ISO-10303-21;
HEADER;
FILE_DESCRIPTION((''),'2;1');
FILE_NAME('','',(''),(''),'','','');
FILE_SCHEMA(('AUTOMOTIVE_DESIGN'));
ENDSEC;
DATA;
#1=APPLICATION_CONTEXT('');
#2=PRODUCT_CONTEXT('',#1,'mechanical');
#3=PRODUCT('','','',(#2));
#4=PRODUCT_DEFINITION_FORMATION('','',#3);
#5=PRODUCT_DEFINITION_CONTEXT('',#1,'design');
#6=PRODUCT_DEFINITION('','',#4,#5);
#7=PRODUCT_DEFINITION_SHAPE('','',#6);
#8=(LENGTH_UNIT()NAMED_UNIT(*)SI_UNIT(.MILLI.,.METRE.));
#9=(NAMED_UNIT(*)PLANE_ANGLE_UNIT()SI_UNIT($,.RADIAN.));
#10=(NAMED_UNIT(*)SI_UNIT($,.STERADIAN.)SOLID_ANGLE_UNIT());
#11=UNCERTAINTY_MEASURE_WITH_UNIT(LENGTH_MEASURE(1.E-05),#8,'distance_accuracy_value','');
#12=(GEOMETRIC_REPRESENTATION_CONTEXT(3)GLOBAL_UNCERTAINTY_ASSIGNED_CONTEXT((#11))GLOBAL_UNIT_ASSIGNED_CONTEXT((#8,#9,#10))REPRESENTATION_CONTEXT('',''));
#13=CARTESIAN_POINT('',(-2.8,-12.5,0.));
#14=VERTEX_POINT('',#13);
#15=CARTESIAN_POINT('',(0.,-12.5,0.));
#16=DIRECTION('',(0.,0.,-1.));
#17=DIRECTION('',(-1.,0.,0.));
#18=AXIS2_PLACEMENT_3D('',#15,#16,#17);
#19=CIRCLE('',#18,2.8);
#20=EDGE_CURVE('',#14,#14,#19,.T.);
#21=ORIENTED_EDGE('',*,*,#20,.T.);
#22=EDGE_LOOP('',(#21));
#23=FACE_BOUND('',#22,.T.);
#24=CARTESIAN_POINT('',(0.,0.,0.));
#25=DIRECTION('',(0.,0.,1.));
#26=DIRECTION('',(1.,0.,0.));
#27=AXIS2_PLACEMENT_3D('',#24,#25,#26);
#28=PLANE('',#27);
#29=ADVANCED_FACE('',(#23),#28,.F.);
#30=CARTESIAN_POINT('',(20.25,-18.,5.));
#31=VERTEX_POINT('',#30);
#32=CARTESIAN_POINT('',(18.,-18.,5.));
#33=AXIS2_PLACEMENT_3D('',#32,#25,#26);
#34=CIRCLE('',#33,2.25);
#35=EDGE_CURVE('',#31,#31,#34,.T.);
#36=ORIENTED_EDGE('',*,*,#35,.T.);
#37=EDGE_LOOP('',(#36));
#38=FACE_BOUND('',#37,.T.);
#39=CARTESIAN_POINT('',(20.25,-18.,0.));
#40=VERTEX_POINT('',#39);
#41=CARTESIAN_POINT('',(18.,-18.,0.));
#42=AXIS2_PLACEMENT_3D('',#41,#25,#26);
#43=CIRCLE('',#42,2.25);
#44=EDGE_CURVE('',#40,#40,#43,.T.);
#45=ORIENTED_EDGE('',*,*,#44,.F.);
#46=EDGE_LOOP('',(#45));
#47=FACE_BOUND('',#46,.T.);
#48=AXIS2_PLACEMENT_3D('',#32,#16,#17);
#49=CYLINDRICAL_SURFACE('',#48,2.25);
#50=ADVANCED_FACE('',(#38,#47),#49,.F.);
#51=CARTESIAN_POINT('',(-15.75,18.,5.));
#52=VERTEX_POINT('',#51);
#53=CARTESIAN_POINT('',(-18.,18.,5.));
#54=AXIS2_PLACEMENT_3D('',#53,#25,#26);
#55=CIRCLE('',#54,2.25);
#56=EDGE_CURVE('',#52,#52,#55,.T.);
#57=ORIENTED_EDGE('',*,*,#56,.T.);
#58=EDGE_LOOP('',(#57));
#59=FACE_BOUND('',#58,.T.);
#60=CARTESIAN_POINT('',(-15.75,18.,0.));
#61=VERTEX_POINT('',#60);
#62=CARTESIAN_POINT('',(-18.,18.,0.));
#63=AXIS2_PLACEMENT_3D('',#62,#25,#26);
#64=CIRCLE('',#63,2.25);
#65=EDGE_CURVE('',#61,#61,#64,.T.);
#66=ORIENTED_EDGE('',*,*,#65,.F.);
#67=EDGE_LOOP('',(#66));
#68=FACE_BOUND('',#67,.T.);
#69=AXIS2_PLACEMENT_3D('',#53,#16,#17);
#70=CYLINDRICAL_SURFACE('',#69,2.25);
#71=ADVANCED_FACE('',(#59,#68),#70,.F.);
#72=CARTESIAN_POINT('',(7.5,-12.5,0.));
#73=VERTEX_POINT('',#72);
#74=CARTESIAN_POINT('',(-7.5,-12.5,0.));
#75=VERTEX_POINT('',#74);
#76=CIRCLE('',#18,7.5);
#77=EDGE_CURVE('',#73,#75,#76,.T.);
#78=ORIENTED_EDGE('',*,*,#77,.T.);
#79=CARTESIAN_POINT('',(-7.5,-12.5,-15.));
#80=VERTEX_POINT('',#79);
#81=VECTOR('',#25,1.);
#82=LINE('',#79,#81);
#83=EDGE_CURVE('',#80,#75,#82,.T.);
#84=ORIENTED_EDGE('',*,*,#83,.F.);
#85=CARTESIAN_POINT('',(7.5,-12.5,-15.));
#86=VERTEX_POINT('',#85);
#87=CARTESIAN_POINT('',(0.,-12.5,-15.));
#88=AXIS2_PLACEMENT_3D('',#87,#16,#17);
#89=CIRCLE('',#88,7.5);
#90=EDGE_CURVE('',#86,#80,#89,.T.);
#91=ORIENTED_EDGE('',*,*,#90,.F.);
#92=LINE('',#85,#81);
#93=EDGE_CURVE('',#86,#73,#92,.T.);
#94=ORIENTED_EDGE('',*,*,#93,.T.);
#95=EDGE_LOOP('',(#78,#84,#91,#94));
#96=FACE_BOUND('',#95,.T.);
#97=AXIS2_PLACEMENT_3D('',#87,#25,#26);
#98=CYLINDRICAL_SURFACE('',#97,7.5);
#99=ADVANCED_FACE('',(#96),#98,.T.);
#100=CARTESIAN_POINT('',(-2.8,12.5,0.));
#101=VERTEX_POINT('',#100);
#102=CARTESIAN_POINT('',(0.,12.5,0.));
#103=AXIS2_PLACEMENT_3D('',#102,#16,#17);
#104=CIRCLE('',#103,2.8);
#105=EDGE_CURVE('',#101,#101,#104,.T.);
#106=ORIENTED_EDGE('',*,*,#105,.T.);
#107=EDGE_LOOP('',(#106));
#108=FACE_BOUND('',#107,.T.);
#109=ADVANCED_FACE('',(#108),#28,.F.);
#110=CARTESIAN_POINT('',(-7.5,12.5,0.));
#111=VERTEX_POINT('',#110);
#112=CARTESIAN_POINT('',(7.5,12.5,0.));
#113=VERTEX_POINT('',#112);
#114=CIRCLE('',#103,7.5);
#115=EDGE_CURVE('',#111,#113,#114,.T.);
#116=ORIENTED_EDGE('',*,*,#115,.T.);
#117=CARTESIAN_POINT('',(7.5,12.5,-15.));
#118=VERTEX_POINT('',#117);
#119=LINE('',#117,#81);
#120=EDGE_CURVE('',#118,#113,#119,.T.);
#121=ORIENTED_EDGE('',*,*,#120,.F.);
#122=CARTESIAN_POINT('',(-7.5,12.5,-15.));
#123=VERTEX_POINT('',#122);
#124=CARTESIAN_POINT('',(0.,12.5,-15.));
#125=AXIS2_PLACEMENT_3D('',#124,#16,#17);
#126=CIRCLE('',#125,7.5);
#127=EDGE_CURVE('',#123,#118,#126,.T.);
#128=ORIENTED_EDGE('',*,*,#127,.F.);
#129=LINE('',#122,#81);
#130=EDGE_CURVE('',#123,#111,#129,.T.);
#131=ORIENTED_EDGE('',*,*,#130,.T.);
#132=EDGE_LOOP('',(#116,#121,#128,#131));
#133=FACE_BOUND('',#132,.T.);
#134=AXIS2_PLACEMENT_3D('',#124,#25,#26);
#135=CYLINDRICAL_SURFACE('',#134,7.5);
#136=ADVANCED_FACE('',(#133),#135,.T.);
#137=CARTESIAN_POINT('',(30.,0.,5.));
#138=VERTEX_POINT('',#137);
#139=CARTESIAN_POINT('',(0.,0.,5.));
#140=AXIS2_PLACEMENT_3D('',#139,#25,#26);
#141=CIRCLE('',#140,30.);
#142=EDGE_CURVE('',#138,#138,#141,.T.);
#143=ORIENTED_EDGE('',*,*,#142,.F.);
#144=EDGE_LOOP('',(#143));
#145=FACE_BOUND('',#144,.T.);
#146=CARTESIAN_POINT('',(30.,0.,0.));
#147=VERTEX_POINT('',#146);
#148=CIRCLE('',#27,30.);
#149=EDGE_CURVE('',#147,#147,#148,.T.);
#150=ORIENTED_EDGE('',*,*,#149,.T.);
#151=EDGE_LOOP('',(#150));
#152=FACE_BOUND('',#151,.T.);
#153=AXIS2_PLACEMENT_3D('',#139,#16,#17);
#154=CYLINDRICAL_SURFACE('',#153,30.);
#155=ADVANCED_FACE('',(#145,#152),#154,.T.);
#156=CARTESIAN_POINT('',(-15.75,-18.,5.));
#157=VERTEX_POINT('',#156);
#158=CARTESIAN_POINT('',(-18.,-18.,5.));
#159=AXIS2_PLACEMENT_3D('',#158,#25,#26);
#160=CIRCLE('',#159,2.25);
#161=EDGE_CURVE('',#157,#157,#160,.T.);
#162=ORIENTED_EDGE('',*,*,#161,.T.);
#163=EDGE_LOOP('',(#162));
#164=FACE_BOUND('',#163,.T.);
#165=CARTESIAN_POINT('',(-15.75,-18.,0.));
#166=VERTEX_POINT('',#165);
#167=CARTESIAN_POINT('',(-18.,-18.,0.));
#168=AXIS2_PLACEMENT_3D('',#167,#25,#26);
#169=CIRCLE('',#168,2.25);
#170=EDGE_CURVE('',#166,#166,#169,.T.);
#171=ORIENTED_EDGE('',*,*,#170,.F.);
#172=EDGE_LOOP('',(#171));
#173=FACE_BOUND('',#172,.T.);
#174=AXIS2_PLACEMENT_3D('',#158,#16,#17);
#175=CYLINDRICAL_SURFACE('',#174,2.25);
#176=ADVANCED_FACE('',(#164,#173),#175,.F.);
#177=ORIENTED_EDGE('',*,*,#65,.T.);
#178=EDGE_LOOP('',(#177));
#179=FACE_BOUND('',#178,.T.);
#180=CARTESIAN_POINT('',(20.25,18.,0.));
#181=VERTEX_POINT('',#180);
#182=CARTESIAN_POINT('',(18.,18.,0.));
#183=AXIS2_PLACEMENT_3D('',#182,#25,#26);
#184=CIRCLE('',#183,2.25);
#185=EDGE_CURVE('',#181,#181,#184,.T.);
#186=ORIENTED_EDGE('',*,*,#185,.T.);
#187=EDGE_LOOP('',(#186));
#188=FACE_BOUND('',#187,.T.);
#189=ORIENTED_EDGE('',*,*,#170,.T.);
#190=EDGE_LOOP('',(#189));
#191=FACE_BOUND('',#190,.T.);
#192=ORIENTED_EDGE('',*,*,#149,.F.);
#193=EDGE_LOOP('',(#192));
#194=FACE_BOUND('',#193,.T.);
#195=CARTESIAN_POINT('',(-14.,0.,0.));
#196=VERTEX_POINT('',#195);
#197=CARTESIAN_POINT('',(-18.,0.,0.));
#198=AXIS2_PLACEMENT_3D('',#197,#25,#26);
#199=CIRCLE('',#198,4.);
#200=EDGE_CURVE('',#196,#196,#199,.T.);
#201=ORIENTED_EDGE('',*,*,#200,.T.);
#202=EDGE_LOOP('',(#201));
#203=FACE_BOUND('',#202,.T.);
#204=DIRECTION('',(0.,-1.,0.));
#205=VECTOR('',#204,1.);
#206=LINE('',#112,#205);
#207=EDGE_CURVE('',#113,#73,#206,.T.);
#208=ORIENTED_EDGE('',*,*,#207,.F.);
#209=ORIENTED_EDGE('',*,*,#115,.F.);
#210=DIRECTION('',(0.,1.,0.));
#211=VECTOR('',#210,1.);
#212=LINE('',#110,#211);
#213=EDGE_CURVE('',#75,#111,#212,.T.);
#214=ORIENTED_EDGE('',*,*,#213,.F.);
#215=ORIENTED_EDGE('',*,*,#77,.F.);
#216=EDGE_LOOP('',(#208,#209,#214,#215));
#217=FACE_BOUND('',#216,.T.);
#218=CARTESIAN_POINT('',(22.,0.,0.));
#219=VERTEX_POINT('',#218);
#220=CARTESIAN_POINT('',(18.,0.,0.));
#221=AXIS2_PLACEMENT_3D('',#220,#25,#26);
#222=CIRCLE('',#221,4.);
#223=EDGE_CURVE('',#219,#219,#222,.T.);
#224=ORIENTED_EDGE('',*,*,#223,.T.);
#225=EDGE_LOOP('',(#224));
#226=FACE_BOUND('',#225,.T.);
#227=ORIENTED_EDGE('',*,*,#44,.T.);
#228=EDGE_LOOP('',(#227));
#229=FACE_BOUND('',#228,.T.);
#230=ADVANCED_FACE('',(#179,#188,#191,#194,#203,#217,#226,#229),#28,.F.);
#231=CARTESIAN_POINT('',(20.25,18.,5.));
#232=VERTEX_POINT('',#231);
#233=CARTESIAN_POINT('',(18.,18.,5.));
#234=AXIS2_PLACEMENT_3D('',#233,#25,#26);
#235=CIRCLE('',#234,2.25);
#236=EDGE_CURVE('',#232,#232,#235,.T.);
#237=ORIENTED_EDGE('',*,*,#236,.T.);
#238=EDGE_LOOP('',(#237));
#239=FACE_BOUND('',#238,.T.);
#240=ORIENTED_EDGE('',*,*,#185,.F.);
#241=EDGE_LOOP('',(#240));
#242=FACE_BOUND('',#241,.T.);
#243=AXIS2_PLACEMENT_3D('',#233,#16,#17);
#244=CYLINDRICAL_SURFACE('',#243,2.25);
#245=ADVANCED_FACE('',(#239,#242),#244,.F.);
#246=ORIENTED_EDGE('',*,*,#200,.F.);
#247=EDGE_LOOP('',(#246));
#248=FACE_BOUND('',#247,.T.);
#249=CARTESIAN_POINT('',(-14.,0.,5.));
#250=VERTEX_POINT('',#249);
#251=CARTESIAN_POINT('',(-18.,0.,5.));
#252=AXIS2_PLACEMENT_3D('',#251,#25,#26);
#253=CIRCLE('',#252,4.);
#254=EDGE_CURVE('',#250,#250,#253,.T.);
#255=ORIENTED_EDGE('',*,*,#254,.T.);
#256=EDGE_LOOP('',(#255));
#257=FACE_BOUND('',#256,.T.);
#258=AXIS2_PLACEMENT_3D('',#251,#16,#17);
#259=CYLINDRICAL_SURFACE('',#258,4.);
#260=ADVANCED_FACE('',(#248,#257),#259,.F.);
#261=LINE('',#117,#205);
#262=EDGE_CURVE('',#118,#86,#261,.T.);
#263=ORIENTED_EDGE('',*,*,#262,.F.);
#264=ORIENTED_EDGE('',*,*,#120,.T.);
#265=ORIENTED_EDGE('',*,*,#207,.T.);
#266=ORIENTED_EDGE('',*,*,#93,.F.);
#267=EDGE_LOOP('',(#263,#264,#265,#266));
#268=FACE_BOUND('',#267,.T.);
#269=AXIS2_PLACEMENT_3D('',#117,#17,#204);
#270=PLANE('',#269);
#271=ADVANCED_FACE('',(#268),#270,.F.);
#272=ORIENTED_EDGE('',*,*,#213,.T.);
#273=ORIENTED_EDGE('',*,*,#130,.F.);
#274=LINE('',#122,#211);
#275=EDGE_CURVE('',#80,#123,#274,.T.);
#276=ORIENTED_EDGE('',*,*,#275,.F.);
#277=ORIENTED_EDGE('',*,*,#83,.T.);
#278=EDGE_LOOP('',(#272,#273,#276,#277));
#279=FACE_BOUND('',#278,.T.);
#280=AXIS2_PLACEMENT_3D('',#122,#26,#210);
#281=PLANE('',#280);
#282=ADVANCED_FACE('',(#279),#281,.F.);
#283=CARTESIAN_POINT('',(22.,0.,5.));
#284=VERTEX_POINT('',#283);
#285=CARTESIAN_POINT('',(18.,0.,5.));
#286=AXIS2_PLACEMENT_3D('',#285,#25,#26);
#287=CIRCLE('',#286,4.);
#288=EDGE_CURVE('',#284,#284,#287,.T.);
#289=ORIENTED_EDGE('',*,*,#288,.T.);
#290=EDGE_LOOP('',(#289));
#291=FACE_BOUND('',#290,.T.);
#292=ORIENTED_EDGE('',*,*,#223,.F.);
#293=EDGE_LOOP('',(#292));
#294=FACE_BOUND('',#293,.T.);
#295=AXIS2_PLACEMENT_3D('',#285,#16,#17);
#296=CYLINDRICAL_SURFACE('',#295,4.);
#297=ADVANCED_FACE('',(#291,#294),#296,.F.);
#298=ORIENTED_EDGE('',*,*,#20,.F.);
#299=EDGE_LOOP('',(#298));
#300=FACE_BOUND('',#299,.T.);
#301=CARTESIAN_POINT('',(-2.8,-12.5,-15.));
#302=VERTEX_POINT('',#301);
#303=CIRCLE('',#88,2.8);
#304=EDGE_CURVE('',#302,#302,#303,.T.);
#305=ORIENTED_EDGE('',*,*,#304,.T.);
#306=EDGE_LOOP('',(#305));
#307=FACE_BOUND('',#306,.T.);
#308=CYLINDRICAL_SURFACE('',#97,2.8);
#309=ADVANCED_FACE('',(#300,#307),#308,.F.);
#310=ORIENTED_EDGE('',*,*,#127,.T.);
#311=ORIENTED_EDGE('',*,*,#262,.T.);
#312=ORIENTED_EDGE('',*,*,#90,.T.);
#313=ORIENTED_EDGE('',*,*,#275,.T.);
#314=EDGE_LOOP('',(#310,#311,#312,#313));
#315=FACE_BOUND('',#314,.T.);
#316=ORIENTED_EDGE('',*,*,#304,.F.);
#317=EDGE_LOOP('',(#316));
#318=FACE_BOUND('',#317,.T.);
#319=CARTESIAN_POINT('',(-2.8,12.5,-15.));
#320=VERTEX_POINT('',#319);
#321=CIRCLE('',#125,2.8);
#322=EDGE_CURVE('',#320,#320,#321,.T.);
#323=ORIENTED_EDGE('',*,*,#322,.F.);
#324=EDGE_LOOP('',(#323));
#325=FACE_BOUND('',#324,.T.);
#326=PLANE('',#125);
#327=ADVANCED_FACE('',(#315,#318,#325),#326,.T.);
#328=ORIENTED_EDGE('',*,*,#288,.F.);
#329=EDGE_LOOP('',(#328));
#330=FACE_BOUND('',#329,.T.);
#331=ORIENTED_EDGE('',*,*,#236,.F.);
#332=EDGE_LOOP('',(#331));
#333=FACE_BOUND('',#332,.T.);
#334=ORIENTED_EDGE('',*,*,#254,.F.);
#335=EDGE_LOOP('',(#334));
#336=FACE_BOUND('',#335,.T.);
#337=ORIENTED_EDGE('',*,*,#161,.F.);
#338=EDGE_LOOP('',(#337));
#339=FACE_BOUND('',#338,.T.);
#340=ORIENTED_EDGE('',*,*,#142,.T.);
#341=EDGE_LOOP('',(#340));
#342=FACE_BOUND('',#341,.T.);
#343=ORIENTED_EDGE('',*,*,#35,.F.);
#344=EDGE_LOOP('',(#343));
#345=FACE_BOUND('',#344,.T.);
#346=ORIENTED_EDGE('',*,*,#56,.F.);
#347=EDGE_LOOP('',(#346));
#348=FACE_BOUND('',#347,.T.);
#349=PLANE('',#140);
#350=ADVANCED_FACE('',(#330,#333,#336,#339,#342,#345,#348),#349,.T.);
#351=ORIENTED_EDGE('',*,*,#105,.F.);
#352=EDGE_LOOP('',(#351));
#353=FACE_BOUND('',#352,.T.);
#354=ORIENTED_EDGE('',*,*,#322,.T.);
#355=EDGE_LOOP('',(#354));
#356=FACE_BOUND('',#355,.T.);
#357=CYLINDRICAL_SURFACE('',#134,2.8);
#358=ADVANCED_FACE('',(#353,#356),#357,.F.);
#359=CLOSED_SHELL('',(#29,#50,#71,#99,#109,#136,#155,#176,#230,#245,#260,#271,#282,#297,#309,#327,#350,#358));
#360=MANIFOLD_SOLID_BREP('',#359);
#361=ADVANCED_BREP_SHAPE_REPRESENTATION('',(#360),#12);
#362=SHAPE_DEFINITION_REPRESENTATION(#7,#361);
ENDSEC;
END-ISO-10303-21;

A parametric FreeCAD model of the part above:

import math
import FreeCAD as App
import Part
import Sketcher
Q = App.Units.Quantity

doc = App.newDocument("Part")
body = doc.addObject("PartDesign::Body", "Body")

# Sketch on XY plane
sketch1 = body.newObject("Sketcher::SketchObject", "Sketch")
sketch1.AttachmentSupport = (doc.getObject("XY_Plane"), [""])
sketch1.MapMode = "FlatFace"
sketch1.addGeometry(Part.Circle(App.Vector(0, 0, 0), App.Vector(0, 0, 1), 30), False)
sketch1.addGeometry(Part.Circle(App.Vector(-18, -18, 0), App.Vector(0, 0, 1), 2.2), False)
sketch1.addGeometry(Part.Circle(App.Vector(18, -18, 0), App.Vector(0, 0, 1), 2.2), False)
sketch1.addGeometry(Part.Circle(App.Vector(-18, 0, 0), App.Vector(0, 0, 1), 4), False)
sketch1.addGeometry(Part.Circle(App.Vector(-18, 18, 0), App.Vector(0, 0, 1), 2.2), False)
sketch1.addGeometry(Part.Circle(App.Vector(18, 0, 0), App.Vector(0, 0, 1), 4), False)
sketch1.addGeometry(Part.Circle(App.Vector(18, 18, 0), App.Vector(0, 0, 1), 2.2), False)
sketch1.addConstraint(Sketcher.Constraint("Coincident", 0, 3, -1, 1))
sketch1.addConstraint(Sketcher.Constraint("Equal", 1, 2))
sketch1.addConstraint(Sketcher.Constraint("Equal", 2, 4))
sketch1.addConstraint(Sketcher.Constraint("Equal", 3, 5))
sketch1.addConstraint(Sketcher.Constraint("Equal", 4, 6))
sketch1.addConstraint(Sketcher.Constraint("Symmetric", 2, 3, 4, 3, -1, 1))
sketch1.addConstraint(Sketcher.Constraint("Symmetric", 3, 3, 5, 3, -1, 1))
sketch1.addConstraint(Sketcher.Constraint("Symmetric", 1, 3, 6, 3, -1, 1))
sketch1.addConstraint(Sketcher.Constraint("Symmetric", 1, 3, 2, 3, -2))
sketch1.addConstraint(Sketcher.Constraint("PointOnObject", 3, 3, -1))
sketch1.addConstraint(Sketcher.Constraint("Vertical", 1, 3, 3, 3))
sketch1.addConstraint(Sketcher.Constraint("Diameter", 0, Q("60 mm")))
sketch1.addConstraint(Sketcher.Constraint("Diameter", 3, Q("8 mm")))
sketch1.addConstraint(Sketcher.Constraint("Diameter", 1, Q("4.5 mm")))
sketch1.addConstraint(Sketcher.Constraint("DistanceX", 1, 3, -1, 1, Q("18 mm")))
sketch1.addConstraint(Sketcher.Constraint("DistanceY", 1, 3, -1, 1, Q("18 mm")))
pad1 = body.newObject("PartDesign::Pad", "Pad")
pad1.Profile = sketch1
pad1.Length = 5

# Sketch on XY plane
sketch2 = body.newObject("Sketcher::SketchObject", "Sketch001")
sketch2.AttachmentSupport = (doc.getObject("XY_Plane"), [""])
sketch2.MapMode = "FlatFace"
sketch2.addGeometry(Part.LineSegment(App.Vector(-7.5, -12.5, 0), App.Vector(-7.5, 12.5, 0)), False)
sketch2.addGeometry(Part.ArcOfCircle(Part.Circle(App.Vector(0, 12.5, 0), App.Vector(0, 0, 1), 7.5), math.radians(0), math.radians(180)), False)
sketch2.addGeometry(Part.LineSegment(App.Vector(7.5, 12.5, 0), App.Vector(7.5, -12.5, 0)), False)
sketch2.addGeometry(Part.ArcOfCircle(Part.Circle(App.Vector(0, -12.5, 0), App.Vector(0, 0, 1), 7.5), math.radians(180), math.radians(360)), False)
sketch2.addGeometry(Part.Circle(App.Vector(0, -12.5, 0), App.Vector(0, 0, 1), 2.8), False)
sketch2.addGeometry(Part.Circle(App.Vector(0, 12.5, 0), App.Vector(0, 0, 1), 2.8), False)
sketch2.addConstraint(Sketcher.Constraint("Tangent", 0, 2, 1, 2))
sketch2.addConstraint(Sketcher.Constraint("Tangent", 1, 1, 2, 1))
sketch2.addConstraint(Sketcher.Constraint("Tangent", 2, 2, 3, 2))
sketch2.addConstraint(Sketcher.Constraint("Tangent", 3, 1, 0, 1))
sketch2.addConstraint(Sketcher.Constraint("Vertical", 0))
sketch2.addConstraint(Sketcher.Constraint("Vertical", 2))
sketch2.addConstraint(Sketcher.Constraint("Coincident", 4, 3, 3, 3))
sketch2.addConstraint(Sketcher.Constraint("Coincident", 5, 3, 1, 3))
sketch2.addConstraint(Sketcher.Constraint("Equal", 4, 5))
sketch2.addConstraint(Sketcher.Constraint("Symmetric", 1, 3, 3, 3, -1, 1))
sketch2.addConstraint(Sketcher.Constraint("Diameter", 4, Q("5.6 mm")))
sketch2.addConstraint(Sketcher.Constraint("Radius", 1, Q("7.5 mm")))
sketch2.addConstraint(Sketcher.Constraint("DistanceY", 0, 1, 0, 2, Q("25 mm")))
pad2 = body.newObject("PartDesign::Pad", "Pad001")
pad2.Profile = sketch2
pad2.Length = 15
pad2.Reversed = True

doc.recompute()
